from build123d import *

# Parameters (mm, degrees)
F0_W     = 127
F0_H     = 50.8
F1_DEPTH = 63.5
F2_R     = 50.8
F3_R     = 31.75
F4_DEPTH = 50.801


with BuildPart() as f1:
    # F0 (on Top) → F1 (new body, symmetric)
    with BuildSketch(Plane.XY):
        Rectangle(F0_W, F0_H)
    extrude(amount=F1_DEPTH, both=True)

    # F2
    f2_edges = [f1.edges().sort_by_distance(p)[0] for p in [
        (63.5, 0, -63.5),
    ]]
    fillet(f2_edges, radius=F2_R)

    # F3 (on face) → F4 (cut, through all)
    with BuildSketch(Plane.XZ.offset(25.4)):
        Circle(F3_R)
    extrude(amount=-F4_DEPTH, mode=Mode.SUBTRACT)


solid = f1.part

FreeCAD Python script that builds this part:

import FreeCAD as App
import Part
import Sketcher

V = App.Vector
Q = App.Units.Quantity


def edges_at(feature, points):
    """Names of the edges that pass closest to the given points."""
    edges = feature.Shape.Edges
    near = lambda p: min(range(len(edges)), key=lambda i: edges[i].distToShape(Part.Vertex(*p))[0])
    return sorted({f"Edge{near(p) + 1}" for p in points})

doc = App.newDocument("Part")
body = doc.addObject("PartDesign::Body", "Body")

# Sketch on XY plane
sketch1 = body.newObject("Sketcher::SketchObject", "Sketch")
sketch1.AttachmentSupport = (doc.getObject("XY_Plane"), [""])
sketch1.MapMode = "FlatFace"
sketch1.addGeometry(Part.LineSegment(V(-64, 25, 0), V(-64, -25, 0)), False)
sketch1.addGeometry(Part.LineSegment(V(-64, -25, 0), V(64, -25, 0)), False)
sketch1.addGeometry(Part.LineSegment(V(64, -25, 0), V(64, 25, 0)), False)
sketch1.addGeometry(Part.LineSegment(V(64, 25, 0), V(-64, 25, 0)), False)
sketch1.addConstraint(Sketcher.Constraint("Coincident", 0, 2, 1, 1))
sketch1.addConstraint(Sketcher.Constraint("Coincident", 1, 2, 2, 1))
sketch1.addConstraint(Sketcher.Constraint("Coincident", 2, 2, 3, 1))
sketch1.addConstraint(Sketcher.Constraint("Coincident", 3, 2, 0, 1))
sketch1.addConstraint(Sketcher.Constraint("Vertical", 0))
sketch1.addConstraint(Sketcher.Constraint("Horizontal", 1))
sketch1.addConstraint(Sketcher.Constraint("Vertical", 2))
sketch1.addConstraint(Sketcher.Constraint("Horizontal", 3))
sketch1.addConstraint(Sketcher.Constraint("Symmetric", 0, 2, 2, 2, -1, 1))
sketch1.addConstraint(Sketcher.Constraint("DistanceX", 1, 1, 1, 2, Q("5 in")))
sketch1.addConstraint(Sketcher.Constraint("DistanceY", 0, 2, 0, 1, Q("2 in")))
pad1 = body.newObject("PartDesign::Pad", "Pad")
pad1.Profile = sketch1
pad1.Length = Q("5 in")
pad1.Midplane = True
doc.recompute()

fillet = body.newObject("PartDesign::Fillet", "Fillet")
fillet.Base = (pad1, edges_at(pad1, [(63.5, 0, -63.5)]))
fillet.Radius = Q("2 in")

# Sketch on XZ plane
sketch2 = body.newObject("Sketcher::SketchObject", "Sketch001")
sketch2.AttachmentSupport = (doc.getObject("XZ_Plane"), [""])
sketch2.MapMode = "FlatFace"
sketch2.AttachmentOffset = App.Placement(V(0, 0, 1 * 25.4), App.Rotation())
sketch2.addGeometry(Part.Circle(V(0, 0, 0), V(0, 0, 1), 32), False)
sketch2.addConstraint(Sketcher.Constraint("Coincident", 0, 3, -1, 1))
sketch2.addConstraint(Sketcher.Constraint("Diameter", 0, Q("2.5 in")))
pocket1 = body.newObject("PartDesign::Pocket", "Pocket")
pocket1.Profile = sketch2
pocket1.Type = "ThroughAll"

doc.recompute()
